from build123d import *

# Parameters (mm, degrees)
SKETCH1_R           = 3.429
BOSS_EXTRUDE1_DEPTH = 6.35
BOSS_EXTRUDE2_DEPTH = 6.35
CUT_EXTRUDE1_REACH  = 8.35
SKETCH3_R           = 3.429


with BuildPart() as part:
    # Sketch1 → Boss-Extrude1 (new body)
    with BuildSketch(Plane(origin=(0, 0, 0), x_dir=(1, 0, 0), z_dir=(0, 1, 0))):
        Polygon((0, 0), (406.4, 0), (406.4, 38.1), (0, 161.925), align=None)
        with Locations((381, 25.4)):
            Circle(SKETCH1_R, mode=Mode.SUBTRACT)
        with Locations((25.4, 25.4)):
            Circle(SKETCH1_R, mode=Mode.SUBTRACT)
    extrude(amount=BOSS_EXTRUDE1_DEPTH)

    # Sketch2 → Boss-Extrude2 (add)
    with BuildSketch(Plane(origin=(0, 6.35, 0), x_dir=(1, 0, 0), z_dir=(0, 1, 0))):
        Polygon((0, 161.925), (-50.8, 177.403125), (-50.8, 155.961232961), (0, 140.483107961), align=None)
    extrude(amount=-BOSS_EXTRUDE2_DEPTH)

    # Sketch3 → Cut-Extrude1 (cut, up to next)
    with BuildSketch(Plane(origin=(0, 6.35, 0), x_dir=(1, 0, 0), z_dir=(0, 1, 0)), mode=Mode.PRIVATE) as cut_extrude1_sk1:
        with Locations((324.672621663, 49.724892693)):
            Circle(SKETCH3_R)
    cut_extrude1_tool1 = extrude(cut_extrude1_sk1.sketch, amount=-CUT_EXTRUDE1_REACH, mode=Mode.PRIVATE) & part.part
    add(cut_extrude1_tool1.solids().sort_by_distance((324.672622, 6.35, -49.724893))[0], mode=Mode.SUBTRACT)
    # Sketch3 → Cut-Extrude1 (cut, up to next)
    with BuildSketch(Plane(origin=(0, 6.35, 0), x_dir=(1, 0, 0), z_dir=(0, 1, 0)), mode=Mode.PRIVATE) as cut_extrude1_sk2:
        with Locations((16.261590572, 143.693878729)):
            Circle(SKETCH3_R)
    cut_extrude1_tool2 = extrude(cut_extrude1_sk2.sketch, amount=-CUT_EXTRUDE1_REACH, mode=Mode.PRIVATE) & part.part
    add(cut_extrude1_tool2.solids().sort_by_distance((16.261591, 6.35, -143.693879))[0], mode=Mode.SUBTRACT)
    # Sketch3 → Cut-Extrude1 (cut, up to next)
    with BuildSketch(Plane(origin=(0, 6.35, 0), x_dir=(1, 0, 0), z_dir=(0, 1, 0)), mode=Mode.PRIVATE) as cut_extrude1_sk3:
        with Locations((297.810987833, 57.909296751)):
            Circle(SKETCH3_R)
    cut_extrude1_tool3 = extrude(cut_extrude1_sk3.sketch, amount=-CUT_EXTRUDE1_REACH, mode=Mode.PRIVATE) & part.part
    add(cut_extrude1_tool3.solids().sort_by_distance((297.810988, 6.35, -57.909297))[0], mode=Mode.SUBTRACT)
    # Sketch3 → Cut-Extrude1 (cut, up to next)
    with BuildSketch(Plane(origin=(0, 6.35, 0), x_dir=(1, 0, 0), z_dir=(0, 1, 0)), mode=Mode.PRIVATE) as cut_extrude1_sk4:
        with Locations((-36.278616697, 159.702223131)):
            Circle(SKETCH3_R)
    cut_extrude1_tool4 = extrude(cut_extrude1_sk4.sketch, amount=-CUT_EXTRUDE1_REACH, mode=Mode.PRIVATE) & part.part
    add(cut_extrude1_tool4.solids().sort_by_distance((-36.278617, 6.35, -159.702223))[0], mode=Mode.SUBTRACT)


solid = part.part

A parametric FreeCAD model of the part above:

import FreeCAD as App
import Part
import Sketcher

V = App.Vector
Q = App.Units.Quantity

doc = App.newDocument("Part")
body = doc.addObject("PartDesign::Body", "Body")

sketch1 = doc.addObject("Sketcher::SketchObject", "Sketch")
body.addObject(sketch1)
sketch1.AttachmentSupport = (doc.XZ_Plane, [""])
sketch1.MapMode = "FlatFace"
sketch1.addGeometry(Part.LineSegment(V(0, 0, 0), V(406.4, 0, 0)), False)
sketch1.addGeometry(Part.LineSegment(V(406.4, 0, 0), V(406.4, -38.1, 0)), False)
sketch1.addGeometry(Part.LineSegment(V(406.4, -38.1, 0), V(0, -161.9, 0)), False)
sketch1.addGeometry(Part.LineSegment(V(0, -161.9, 0), V(0, 0, 0)), False)
sketch1.addGeometry(Part.Circle(V(25.4, -25.4, 0), V(0, 0, 1), 3.4), False)
sketch1.addGeometry(Part.Circle(V(381, -25.4, 0), V(0, 0, 1), 3.4), False)
sketch1.addConstraint(Sketcher.Constraint("Coincident", 0, 2, 1, 1))
sketch1.addConstraint(Sketcher.Constraint("Coincident", 1, 2, 2, 1))
sketch1.addConstraint(Sketcher.Constraint("Coincident", 2, 2, 3, 1))
sketch1.addConstraint(Sketcher.Constraint("Coincident", 3, 2, 0, 1))
sketch1.addConstraint(Sketcher.Constraint("Horizontal", 0))
sketch1.addConstraint(Sketcher.Constraint("Vertical", 1))
sketch1.addConstraint(Sketcher.Constraint("Vertical", 3))
sketch1.addConstraint(Sketcher.Constraint("Coincident", 3, 2, -1, 1))
sketch1.addConstraint(Sketcher.Constraint("Equal", 4, 5))
sketch1.addConstraint(Sketcher.Constraint("Horizontal", 4, 3, 5, 3))
sketch1.addConstraint(Sketcher.Constraint("Diameter", 4, Q("0.27 in")))
sketch1.addConstraint(Sketcher.Constraint("DistanceX", 0, 1, 0, 2, Q("16 in")))
sketch1.addConstraint(Sketcher.Constraint("DistanceY", 1, 2, 1, 1, Q("1.5 in")))
sketch1.addConstraint(Sketcher.Constraint("DistanceX", -1, 1, 4, 3, Q("1 in")))
sketch1.addConstraint(Sketcher.Constraint("DistanceY", 4, 3, -1, 1, Q("1 in")))
sketch1.addConstraint(Sketcher.Constraint("DistanceX", -1, 1, 5, 3, Q("15 in")))
sketch1.addConstraint(Sketcher.Constraint("DistanceY", 3, 1, 3, 2, Q("6.375 in")))
pad1 = doc.addObject("PartDesign::Pad", "Pad")
body.addObject(pad1)
pad1.Profile = sketch1
pad1.Length = Q("0.25 in")
pad1.Reversed = True

sketch2 = doc.addObject("Sketcher::SketchObject", "Sketch001")
body.addObject(sketch2)
sketch2.AttachmentSupport = (doc.XZ_Plane, [""])
sketch2.MapMode = "FlatFace"
sketch2.AttachmentOffset = App.Placement(V(0, 0, -0.25 * 25.4), App.Rotation())
sketch2.addGeometry(Part.LineSegment(V(0, -162, 0), V(-51, -177, 0)), False)
sketch2.addGeometry(Part.LineSegment(V(-51, -177, 0), V(-51, -156, 0)), False)
sketch2.addGeometry(Part.LineSegment(V(-51, -156, 0), V(0, -140, 0)), False)
sketch2.addGeometry(Part.LineSegment(V(0, -140, 0), V(0, -162, 0)), False)
sketch2.addConstraint(Sketcher.Constraint("Coincident", 0, 2, 1, 1))
sketch2.addConstraint(Sketcher.Constraint("Coincident", 1, 2, 2, 1))
sketch2.addConstraint(Sketcher.Constraint("Coincident", 2, 2, 3, 1))
sketch2.addConstraint(Sketcher.Constraint("Coincident", 3, 2, 0, 1))
sketch2.addConstraint(Sketcher.Constraint("Vertical", 1))
sketch2.addConstraint(Sketcher.Constraint("Vertical", 3))
sketch2.addConstraint(Sketcher.Constraint("PointOnObject", 2, 2, -2))
sketch2.addConstraint(Sketcher.Constraint("Parallel", 0, 2))
sketch2.addConstraint(Sketcher.Constraint("DistanceX", 0, 2, -1, 1, Q("2 in")))
sketch2.addConstraint(Sketcher.Constraint("DistanceY", 0, 2, -1, 1, Q("6.984375 in")))
sketch2.addConstraint(Sketcher.Constraint("DistanceY", 3, 2, -1, 1, Q("6.375 in")))
sketch2.addConstraint(Sketcher.Constraint("DistanceY", 1, 1, 1, 2, 21.441892))
pad2 = doc.addObject("PartDesign::Pad", "Pad001")
body.addObject(pad2)
pad2.Profile = sketch2
pad2.Length = Q("0.25 in")

sketch3 = doc.addObject("Sketcher::SketchObject", "Sketch002")
body.addObject(sketch3)
sketch3.AttachmentSupport = (doc.XZ_Plane, [""])
sketch3.MapMode = "FlatFace"
sketch3.AttachmentOffset = App.Placement(V(0, 0, -0.25 * 25.4), App.Rotation())
sketch3.addGeometry(Part.Circle(V(324.7, -49.7, 0), V(0, 0, 1), 3.4), False)
sketch3.addConstraint(Sketcher.Constraint("Diameter", 0, Q("0.27 in")))
sketch3.addConstraint(Sketcher.Constraint("DistanceX", -1, 1, 0, 3, 324.672622))
sketch3.addConstraint(Sketcher.Constraint("DistanceY", 0, 3, -1, 1, 49.724893))
pocket1 = doc.addObject("PartDesign::Pocket", "Pocket")
body.addObject(pocket1)
pocket1.Profile = sketch3
pocket1.Type = "UpToFirst"
pocket1.Reversed = True

sketch4 = doc.addObject("Sketcher::SketchObject", "Sketch003")
body.addObject(sketch4)
sketch4.AttachmentSupport = (doc.XZ_Plane, [""])
sketch4.MapMode = "FlatFace"
sketch4.AttachmentOffset = App.Placement(V(0, 0, -0.25 * 25.4), App.Rotation())
sketch4.addGeometry(Part.Circle(V(16.3, -143.7, 0), V(0, 0, 1), 3.4), False)
sketch4.addConstraint(Sketcher.Constraint("Diameter", 0, Q("0.27 in")))
sketch4.addConstraint(Sketcher.Constraint("DistanceX", -1, 1, 0, 3, 16.261591))
sketch4.addConstraint(Sketcher.Constraint("DistanceY", 0, 3, -1, 1, 143.693879))
pocket2 = doc.addObject("PartDesign::Pocket", "Pocket001")
body.addObject(pocket2)
pocket2.Profile = sketch4
pocket2.Type = "UpToFirst"
pocket2.Reversed = True

sketch5 = doc.addObject("Sketcher::SketchObject", "Sketch004")
body.addObject(sketch5)
sketch5.AttachmentSupport = (doc.XZ_Plane, [""])
sketch5.MapMode = "FlatFace"
sketch5.AttachmentOffset = App.Placement(V(0, 0, -0.25 * 25.4), App.Rotation())
sketch5.addGeometry(Part.Circle(V(297.8, -57.9, 0), V(0, 0, 1), 3.4), False)
sketch5.addConstraint(Sketcher.Constraint("Diameter", 0, Q("0.27 in")))
sketch5.addConstraint(Sketcher.Constraint("DistanceX", -1, 1, 0, 3, 297.810988))
sketch5.addConstraint(Sketcher.Constraint("DistanceY", 0, 3, -1, 1, 57.909297))
pocket3 = doc.addObject("PartDesign::Pocket", "Pocket002")
body.addObject(pocket3)
pocket3.Profile = sketch5
pocket3.Type = "UpToFirst"
pocket3.Reversed = True

sketch6 = doc.addObject("Sketcher::SketchObject", "Sketch005")
body.addObject(sketch6)
sketch6.AttachmentSupport = (doc.XZ_Plane, [""])
sketch6.MapMode = "FlatFace"
sketch6.AttachmentOffset = App.Placement(V(0, 0, -0.25 * 25.4), App.Rotation())
sketch6.addGeometry(Part.Circle(V(-36.3, -159.7, 0), V(0, 0, 1), 3.4), False)
sketch6.addConstraint(Sketcher.Constraint("Diameter", 0, Q("0.27 in")))
sketch6.addConstraint(Sketcher.Constraint("DistanceX", 0, 3, -1, 1, 36.278617))
sketch6.addConstraint(Sketcher.Constraint("DistanceY", 0, 3, -1, 1, 159.702223))
pocket4 = doc.addObject("PartDesign::Pocket", "Pocket003")
body.addObject(pocket4)
pocket4.Profile = sketch6
pocket4.Type = "UpToFirst"
pocket4.Reversed = True

doc.recompute()
